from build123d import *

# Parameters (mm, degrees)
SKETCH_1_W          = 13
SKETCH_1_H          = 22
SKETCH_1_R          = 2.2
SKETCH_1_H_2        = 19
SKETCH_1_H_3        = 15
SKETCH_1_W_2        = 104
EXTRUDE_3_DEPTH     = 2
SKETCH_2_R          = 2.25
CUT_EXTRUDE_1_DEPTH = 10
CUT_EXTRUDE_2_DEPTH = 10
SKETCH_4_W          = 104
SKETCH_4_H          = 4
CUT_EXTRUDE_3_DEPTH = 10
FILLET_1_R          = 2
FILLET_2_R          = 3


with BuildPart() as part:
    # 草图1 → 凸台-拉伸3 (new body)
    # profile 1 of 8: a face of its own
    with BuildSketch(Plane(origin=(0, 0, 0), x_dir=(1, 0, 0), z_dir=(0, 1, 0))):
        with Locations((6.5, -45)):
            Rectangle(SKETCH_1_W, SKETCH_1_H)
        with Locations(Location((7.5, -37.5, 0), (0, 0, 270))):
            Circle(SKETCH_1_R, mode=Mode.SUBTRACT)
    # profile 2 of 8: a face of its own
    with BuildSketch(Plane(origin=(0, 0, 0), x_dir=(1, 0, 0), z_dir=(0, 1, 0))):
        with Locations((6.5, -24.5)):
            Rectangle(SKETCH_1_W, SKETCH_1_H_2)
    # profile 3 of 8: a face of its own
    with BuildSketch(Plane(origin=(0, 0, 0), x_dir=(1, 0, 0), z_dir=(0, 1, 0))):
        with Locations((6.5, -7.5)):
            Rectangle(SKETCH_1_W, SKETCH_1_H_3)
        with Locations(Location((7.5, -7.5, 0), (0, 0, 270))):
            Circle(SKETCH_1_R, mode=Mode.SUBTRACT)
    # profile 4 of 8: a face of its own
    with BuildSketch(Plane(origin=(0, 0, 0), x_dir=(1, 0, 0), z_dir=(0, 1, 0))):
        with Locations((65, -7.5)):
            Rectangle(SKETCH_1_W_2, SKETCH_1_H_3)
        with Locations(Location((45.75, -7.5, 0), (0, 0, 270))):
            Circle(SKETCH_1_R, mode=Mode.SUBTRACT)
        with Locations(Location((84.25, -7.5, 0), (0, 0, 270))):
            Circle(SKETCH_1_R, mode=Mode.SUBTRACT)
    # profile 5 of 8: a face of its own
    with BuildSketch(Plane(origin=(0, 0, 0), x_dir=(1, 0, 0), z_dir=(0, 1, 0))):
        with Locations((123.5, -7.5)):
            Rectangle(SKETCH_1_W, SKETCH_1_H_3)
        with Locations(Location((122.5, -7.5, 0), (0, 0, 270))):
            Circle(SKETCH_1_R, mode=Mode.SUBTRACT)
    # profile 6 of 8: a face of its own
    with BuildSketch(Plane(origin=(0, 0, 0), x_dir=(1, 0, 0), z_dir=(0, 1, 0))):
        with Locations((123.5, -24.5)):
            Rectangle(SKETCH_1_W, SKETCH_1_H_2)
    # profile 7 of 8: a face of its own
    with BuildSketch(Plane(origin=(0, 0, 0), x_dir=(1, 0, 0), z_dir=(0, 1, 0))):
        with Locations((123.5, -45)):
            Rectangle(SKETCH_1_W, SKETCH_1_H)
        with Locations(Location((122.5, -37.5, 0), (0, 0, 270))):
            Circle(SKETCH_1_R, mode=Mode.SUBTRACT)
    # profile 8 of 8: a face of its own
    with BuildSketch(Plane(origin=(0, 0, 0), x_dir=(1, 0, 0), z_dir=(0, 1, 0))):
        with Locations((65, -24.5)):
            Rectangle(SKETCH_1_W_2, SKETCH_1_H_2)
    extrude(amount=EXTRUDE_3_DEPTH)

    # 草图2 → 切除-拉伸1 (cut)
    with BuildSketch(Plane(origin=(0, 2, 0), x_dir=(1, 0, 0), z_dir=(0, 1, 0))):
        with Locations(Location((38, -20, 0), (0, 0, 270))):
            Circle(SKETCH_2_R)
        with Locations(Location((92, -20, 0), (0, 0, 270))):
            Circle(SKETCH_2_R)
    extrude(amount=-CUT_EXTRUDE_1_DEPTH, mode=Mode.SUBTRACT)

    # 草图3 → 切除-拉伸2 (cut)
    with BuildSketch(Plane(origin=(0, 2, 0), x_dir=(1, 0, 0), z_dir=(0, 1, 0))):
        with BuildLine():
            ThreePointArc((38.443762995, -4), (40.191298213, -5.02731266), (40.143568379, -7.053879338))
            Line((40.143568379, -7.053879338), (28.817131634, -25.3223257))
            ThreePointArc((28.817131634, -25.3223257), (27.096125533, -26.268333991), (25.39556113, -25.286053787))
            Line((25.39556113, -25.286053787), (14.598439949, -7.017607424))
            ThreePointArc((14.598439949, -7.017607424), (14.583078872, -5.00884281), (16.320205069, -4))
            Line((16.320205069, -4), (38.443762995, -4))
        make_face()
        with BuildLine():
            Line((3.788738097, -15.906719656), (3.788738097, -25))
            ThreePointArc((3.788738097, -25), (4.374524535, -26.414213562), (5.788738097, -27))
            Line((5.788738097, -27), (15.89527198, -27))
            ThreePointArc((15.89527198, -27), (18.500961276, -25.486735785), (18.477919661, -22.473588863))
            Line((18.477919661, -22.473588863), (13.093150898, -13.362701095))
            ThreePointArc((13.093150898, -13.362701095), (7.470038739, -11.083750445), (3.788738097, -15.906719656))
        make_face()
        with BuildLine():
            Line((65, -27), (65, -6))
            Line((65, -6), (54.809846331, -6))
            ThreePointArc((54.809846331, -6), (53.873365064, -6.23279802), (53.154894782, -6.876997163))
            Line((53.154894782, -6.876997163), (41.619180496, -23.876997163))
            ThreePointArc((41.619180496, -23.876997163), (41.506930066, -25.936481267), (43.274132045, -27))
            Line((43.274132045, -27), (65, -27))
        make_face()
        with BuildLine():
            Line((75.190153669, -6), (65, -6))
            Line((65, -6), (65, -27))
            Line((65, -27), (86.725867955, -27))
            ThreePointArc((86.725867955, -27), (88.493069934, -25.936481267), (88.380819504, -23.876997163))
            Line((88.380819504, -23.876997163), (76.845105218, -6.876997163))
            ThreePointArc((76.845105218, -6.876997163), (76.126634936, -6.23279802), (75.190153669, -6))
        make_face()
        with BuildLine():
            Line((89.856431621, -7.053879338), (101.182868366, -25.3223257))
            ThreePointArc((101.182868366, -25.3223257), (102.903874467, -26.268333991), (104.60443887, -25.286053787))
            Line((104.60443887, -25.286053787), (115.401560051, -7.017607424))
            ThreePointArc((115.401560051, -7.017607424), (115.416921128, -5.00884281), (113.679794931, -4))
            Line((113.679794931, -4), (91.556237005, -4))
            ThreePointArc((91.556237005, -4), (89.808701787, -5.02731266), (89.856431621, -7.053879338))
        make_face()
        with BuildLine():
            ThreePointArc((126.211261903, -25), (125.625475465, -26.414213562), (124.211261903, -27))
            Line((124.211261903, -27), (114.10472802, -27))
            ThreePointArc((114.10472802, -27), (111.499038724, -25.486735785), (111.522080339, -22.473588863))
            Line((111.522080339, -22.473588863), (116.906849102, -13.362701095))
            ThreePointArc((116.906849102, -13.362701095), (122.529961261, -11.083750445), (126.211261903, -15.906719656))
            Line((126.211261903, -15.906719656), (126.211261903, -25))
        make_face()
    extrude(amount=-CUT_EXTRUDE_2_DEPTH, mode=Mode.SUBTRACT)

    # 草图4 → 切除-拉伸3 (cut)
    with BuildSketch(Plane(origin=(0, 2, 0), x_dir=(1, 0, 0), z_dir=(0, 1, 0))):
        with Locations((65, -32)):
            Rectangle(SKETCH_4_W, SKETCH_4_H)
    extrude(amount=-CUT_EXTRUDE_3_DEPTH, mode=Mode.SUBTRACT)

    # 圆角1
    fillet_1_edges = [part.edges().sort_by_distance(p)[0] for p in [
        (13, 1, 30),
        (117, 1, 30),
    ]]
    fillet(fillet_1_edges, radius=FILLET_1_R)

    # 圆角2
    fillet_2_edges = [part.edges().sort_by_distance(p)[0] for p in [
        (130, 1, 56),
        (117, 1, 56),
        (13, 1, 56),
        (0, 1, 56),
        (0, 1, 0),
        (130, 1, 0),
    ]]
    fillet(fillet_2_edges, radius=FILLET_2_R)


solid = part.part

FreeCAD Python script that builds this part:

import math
import FreeCAD as App
import Part
import Sketcher

V = App.Vector
Q = App.Units.Quantity


def edges_at(feature, points):
    """Names of the edges that pass closest to the given points."""
    edges = feature.Shape.Edges
    near = lambda p: min(range(len(edges)), key=lambda i: edges[i].distToShape(Part.Vertex(*p))[0])
    return sorted({f"Edge{near(p) + 1}" for p in points})

doc = App.newDocument("Part")
params = doc.addObject("Spreadsheet::Sheet", "Params")
for row, (alias, value) in enumerate([
    ("sketch1_diameter", "4.4 mm"),
    ("sketch1_width", "13 mm"),
    ("sketch1_width2", "104 mm"),
    ("sketch1_height", "22 mm"),
    ("sketch1_height2", "56 mm"),
    ("pad1_length", "2 mm"),
    ("sketch2_diameter", "4.5 mm"),
    ("pocket1_length", "10 mm"),
    ("sketch3_radius", "2 mm"),
    ("sketch3_radius2", "3 mm"),
    ("sketch3_radius3", "5 mm"),
    ("pocket2_length", "10 mm"),
    ("sketch4_width", "104 mm"),
    ("sketch4_height", "4 mm"),
    ("pocket3_length", "10 mm"),
    ("fillet_radius", "2 mm"),
    ("fillet2_radius", "3 mm"),
], start=1):
    params.set(f"A{row}", alias)
    params.set(f"B{row}", "=" + value)
    params.setAlias(f"B{row}", alias)

body = doc.addObject("PartDesign::Body", "Body")

# Sketch on XZ plane
sketch1 = doc.addObject("Sketcher::SketchObject", "Sketch")
body.addObject(sketch1)
sketch1.AttachmentSupport = (doc.XZ_Plane, [""])
sketch1.MapMode = "FlatFace"
sketch1.addGeometry([
    Part.LineSegment(V(0, 56, 0), V(13, 56, 0)),  # 0
    Part.LineSegment(V(13, 56, 0), V(13, 34, 0)),  # 1
    Part.LineSegment(V(13, 34, 0), V(117, 34, 0)),  # 2
    Part.LineSegment(V(117, 34, 0), V(117, 56, 0)),  # 3
    Part.LineSegment(V(117, 56, 0), V(130, 56, 0)),  # 4
    Part.LineSegment(V(130, 56, 0), V(130, 0, 0)),  # 5
    Part.LineSegment(V(130, 0, 0), V(0, 0, 0)),  # 6
    Part.LineSegment(V(0, 0, 0), V(0, 56, 0)),  # 7
    Part.Circle(V(7.5, 37.5, 0), V(0, 0, 1), 2.2),  # 8
    Part.Circle(V(7.5, 7.5, 0), V(0, 0, 1), 2.2),  # 9
    Part.Circle(V(84.25, 7.5, 0), V(0, 0, 1), 2.2),  # 10
    Part.Circle(V(45.75, 7.5, 0), V(0, 0, 1), 2.2),  # 11
    Part.Circle(V(122.5, 7.5, 0), V(0, 0, 1), 2.2),  # 12
    Part.Circle(V(122.5, 37.5, 0), V(0, 0, 1), 2.2),  # 13
], False)
sketch1.addConstraint([
    Sketcher.Constraint("Coincident", 0, 2, 1, 1),
    Sketcher.Constraint("Coincident", 1, 2, 2, 1),
    Sketcher.Constraint("Coincident", 2, 2, 3, 1),
    Sketcher.Constraint("Coincident", 3, 2, 4, 1),
    Sketcher.Constraint("Coincident", 4, 2, 5, 1),
    Sketcher.Constraint("Coincident", 5, 2, 6, 1),
    Sketcher.Constraint("Coincident", 6, 2, 7, 1),
    Sketcher.Constraint("Coincident", 7, 2, 0, 1),
    Sketcher.Constraint("Horizontal", 0),
    Sketcher.Constraint("Vertical", 1),
    Sketcher.Constraint("Horizontal", 2),
    Sketcher.Constraint("Vertical", 3),
    Sketcher.Constraint("Horizontal", 4),
    Sketcher.Constraint("Vertical", 5),
    Sketcher.Constraint("Horizontal", 6),
    Sketcher.Constraint("Vertical", 7),
    Sketcher.Constraint("Coincident", 6, 2, -1, 1),
    Sketcher.Constraint("Equal", 8, 9),
    Sketcher.Constraint("Equal", 9, 10),
    Sketcher.Constraint("Equal", 10, 11),
    Sketcher.Constraint("Equal", 11, 12),
    Sketcher.Constraint("Equal", 12, 13),
    Sketcher.Constraint("Horizontal", 9, 3, 10, 3),
    Sketcher.Constraint("Horizontal", 10, 3, 11, 3),
    Sketcher.Constraint("Horizontal", 11, 3, 12, 3),
    Sketcher.Constraint("Horizontal", 8, 3, 13, 3),
    Sketcher.Constraint("Horizontal", 0, 2, 3, 2),
    Sketcher.Constraint("Vertical", 8, 3, 9, 3),
    Sketcher.Constraint("Vertical", 12, 3, 13, 3),
    Sketcher.Constraint("Equal", 0, 4),
    Sketcher.Constraint("Diameter", 8, Q("4.4 mm")),
    Sketcher.Constraint("DistanceX", 0, 1, 0, 2, Q("13 mm")),
    Sketcher.Constraint("DistanceX", 2, 1, 2, 2, Q("104 mm")),
    Sketcher.Constraint("DistanceY", 1, 2, 1, 1, Q("22 mm")),
    Sketcher.Constraint("DistanceY", 5, 2, 5, 1, Q("56 mm")),
    Sketcher.Constraint("DistanceY", 9, 3, 8, 3, Q("30 mm")),
    Sketcher.Constraint("DistanceX", 9, 3, 12, 3, Q("115 mm")),
    Sketcher.Constraint("DistanceX", -1, 1, 8, 3, Q("7.5 mm")),
    Sketcher.Constraint("DistanceY", -1, 1, 8, 3, Q("37.5 mm")),
    Sketcher.Constraint("DistanceX", 11, 3, 10, 3, Q("38.5 mm")),
    Sketcher.Constraint("DistanceX", -1, 1, 10, 3, Q("84.25 mm")),
])
sketch1.setExpression("Constraints[30]", "Params.sketch1_diameter")
sketch1.setExpression("Constraints[31]", "Params.sketch1_width")
sketch1.setExpression("Constraints[32]", "Params.sketch1_width2")
sketch1.setExpression("Constraints[33]", "Params.sketch1_height")
sketch1.setExpression("Constraints[34]", "Params.sketch1_height2")
pad1 = doc.addObject("PartDesign::Pad", "Pad")
body.addObject(pad1)
pad1.Profile = sketch1
pad1.setExpression("Length", "Params.pad1_length")
pad1.Reversed = True

# Sketch on XZ plane
sketch2 = doc.addObject("Sketcher::SketchObject", "Sketch001")
body.addObject(sketch2)
sketch2.AttachmentSupport = (doc.XZ_Plane, [""])
sketch2.MapMode = "FlatFace"
sketch2.AttachmentOffset = App.Placement(V(0, 0, -2), App.Rotation())
sketch2.addGeometry([
    Part.Circle(V(38, 20, 0), V(0, 0, 1), 2.25),
    Part.Circle(V(92, 20, 0), V(0, 0, 1), 2.25),
], False)
sketch2.addConstraint([
    Sketcher.Constraint("Equal", 0, 1),
    Sketcher.Constraint("Horizontal", 0, 3, 1, 3),
    Sketcher.Constraint("Diameter", 0, Q("4.5 mm")),
    Sketcher.Constraint("DistanceX", -1, 1, 0, 3, Q("38 mm")),
    Sketcher.Constraint("DistanceY", -1, 1, 0, 3, Q("20 mm")),
    Sketcher.Constraint("DistanceX", -1, 1, 1, 3, Q("92 mm")),
])
sketch2.setExpression("Constraints[2]", "Params.sketch2_diameter")
pocket1 = doc.addObject("PartDesign::Pocket", "Pocket")
body.addObject(pocket1)
pocket1.Profile = sketch2
pocket1.setExpression("Length", "Params.pocket1_length")
pocket1.Reversed = True

# Sketch on XZ plane
sketch3 = doc.addObject("Sketcher::SketchObject", "Sketch002")
body.addObject(sketch3)
sketch3.AttachmentSupport = (doc.XZ_Plane, [""])
sketch3.MapMode = "FlatFace"
sketch3.AttachmentOffset = App.Placement(V(0, 0, -2), App.Rotation())
sketch3.addGeometry([
    Part.ArcOfCircle(Part.Circle(V(38.443763, 6, 0), V(0, 0, 1), 2), math.radians(-90), math.radians(31.798913)),  # 0
    Part.LineSegment(V(38.443763, 4, 0), V(16.320205, 4, 0)),  # 1
    Part.ArcOfCircle(Part.Circle(V(16.320205, 6, 0), V(0, 0, 1), 2), math.radians(149.415822), math.radians(270)),  # 2
    Part.LineSegment(V(14.59844, 7.017607, 0), V(25.395561, 25.286054, 0)),  # 3
    Part.ArcOfCircle(Part.Circle(V(27.117326, 24.268446, 0), V(0, 0, 1), 2), math.radians(31.798913), math.radians(149.415822)),  # 4
    Part.LineSegment(V(28.817132, 25.322326, 0), V(40.143568, 7.053879, 0)),  # 5
    Part.LineSegment(V(3.788738, 15.90672, 0), V(3.788738, 25, 0)),  # 6
    Part.ArcOfCircle(Part.Circle(V(5.788738, 25, 0), V(0, 0, 1), 2), math.radians(90), math.radians(180)),  # 7
    Part.LineSegment(V(5.788738, 27, 0), V(15.895272, 27, 0)),  # 8
    Part.ArcOfCircle(Part.Circle(V(15.895272, 24, 0), V(0, 0, 1), 3), math.radians(-30.584178), math.radians(90)),  # 9
    Part.LineSegment(V(18.47792, 22.473589, 0), V(13.093151, 13.362701, 0)),  # 10
    Part.ArcOfCircle(Part.Circle(V(8.788738, 15.90672, 0), V(0, 0, 1), 5), math.radians(180), math.radians(329.415822)),  # 11
    Part.ArcOfCircle(Part.Circle(V(54.809846, 8, 0), V(0, 0, 1), 2), math.radians(-145.840305), math.radians(-90)),  # 12
    Part.LineSegment(V(53.154895, 6.876997, 0), V(41.61918, 23.876997, 0)),  # 13
    Part.ArcOfCircle(Part.Circle(V(43.274132, 25, 0), V(0, 0, 1), 2), math.radians(90), math.radians(214.159695)),  # 14
    Part.LineSegment(V(43.274132, 27, 0), V(86.725868, 27, 0)),  # 15
    Part.ArcOfCircle(Part.Circle(V(86.725868, 25, 0), V(0, 0, 1), 2), math.radians(-34.159695), math.radians(90)),  # 16
    Part.LineSegment(V(88.38082, 23.876997, 0), V(76.845105, 6.876997, 0)),  # 17
    Part.ArcOfCircle(Part.Circle(V(75.190154, 8, 0), V(0, 0, 1), 2), math.radians(-90), math.radians(-34.159695)),  # 18
    Part.LineSegment(V(75.190154, 6, 0), V(54.809846, 6, 0)),  # 19
    Part.LineSegment(V(89.856432, 7.053879, 0), V(101.182868, 25.322326, 0)),  # 20
    Part.ArcOfCircle(Part.Circle(V(102.882674, 24.268446, 0), V(0, 0, 1), 2), math.radians(30.584178), math.radians(148.201087)),  # 21
    Part.LineSegment(V(104.604439, 25.286054, 0), V(115.40156, 7.017607, 0)),  # 22
    Part.ArcOfCircle(Part.Circle(V(113.679795, 6, 0), V(0, 0, 1), 2), math.radians(-90), math.radians(30.584178)),  # 23
    Part.LineSegment(V(113.679795, 4, 0), V(91.556237, 4, 0)),  # 24
    Part.ArcOfCircle(Part.Circle(V(91.556237, 6, 0), V(0, 0, 1), 2), math.radians(148.201087), math.radians(270)),  # 25
    Part.ArcOfCircle(Part.Circle(V(124.211262, 25, 0), V(0, 0, 1), 2), math.radians(0), math.radians(90)),  # 26
    Part.LineSegment(V(126.211262, 25, 0), V(126.211262, 15.90672, 0)),  # 27
    Part.ArcOfCircle(Part.Circle(V(121.211262, 15.90672, 0), V(0, 0, 1), 5), math.radians(-149.415822), math.radians(0)),  # 28
    Part.LineSegment(V(116.906849, 13.362701, 0), V(111.52208, 22.473589, 0)),  # 29
    Part.ArcOfCircle(Part.Circle(V(114.104728, 24, 0), V(0, 0, 1), 3), math.radians(90), math.radians(210.584178)),  # 30
    Part.LineSegment(V(114.104728, 27, 0), V(124.211262, 27, 0)),  # 31
], False)
sketch3.addConstraint([
    Sketcher.Constraint("Tangent", 0, 1, 1, 1),
    Sketcher.Constraint("Tangent", 1, 2, 2, 2),
    Sketcher.Constraint("Tangent", 2, 1, 3, 1),
    Sketcher.Constraint("Tangent", 3, 2, 4, 2),
    Sketcher.Constraint("Tangent", 4, 1, 5, 1),
    Sketcher.Constraint("Tangent", 5, 2, 0, 2),
    Sketcher.Constraint("Tangent", 6, 2, 7, 2),
    Sketcher.Constraint("Tangent", 7, 1, 8, 1),
    Sketcher.Constraint("Tangent", 8, 2, 9, 2),
    Sketcher.Constraint("Tangent", 9, 1, 10, 1),
    Sketcher.Constraint("Tangent", 10, 2, 11, 2),
    Sketcher.Constraint("Tangent", 11, 1, 6, 1),
    Sketcher.Constraint("Tangent", 12, 1, 13, 1),
    Sketcher.Constraint("Tangent", 13, 2, 14, 2),
    Sketcher.Constraint("Tangent", 14, 1, 15, 1),
    Sketcher.Constraint("Tangent", 15, 2, 16, 2),
    Sketcher.Constraint("Tangent", 16, 1, 17, 1),
    Sketcher.Constraint("Tangent", 17, 2, 18, 2),
    Sketcher.Constraint("Tangent", 18, 1, 19, 1),
    Sketcher.Constraint("Tangent", 19, 2, 12, 2),
    Sketcher.Constraint("Tangent", 20, 2, 21, 2),
    Sketcher.Constraint("Tangent", 21, 1, 22, 1),
    Sketcher.Constraint("Tangent", 22, 2, 23, 2),
    Sketcher.Constraint("Tangent", 23, 1, 24, 1),
    Sketcher.Constraint("Tangent", 24, 2, 25, 2),
    Sketcher.Constraint("Tangent", 25, 1, 20, 1),
    Sketcher.Constraint("Tangent", 26, 1, 27, 1),
    Sketcher.Constraint("Tangent", 27, 2, 28, 2),
    Sketcher.Constraint("Tangent", 28, 1, 29, 1),
    Sketcher.Constraint("Tangent", 29, 2, 30, 2),
    Sketcher.Constraint("Tangent", 30, 1, 31, 1),
    Sketcher.Constraint("Tangent", 31, 2, 26, 2),
    Sketcher.Constraint("Horizontal", 1),
    Sketcher.Constraint("Vertical", 6),
    Sketcher.Constraint("Horizontal", 8),
    Sketcher.Constraint("Horizontal", 15),
    Sketcher.Constraint("Horizontal", 19),
    Sketcher.Constraint("Horizontal", 24),
    Sketcher.Constraint("Vertical", 27),
    Sketcher.Constraint("Horizontal", 31),
    Sketcher.Constraint("Equal", 0, 2),
    Sketcher.Constraint("Equal", 2, 4),
    Sketcher.Constraint("Equal", 4, 7),
    Sketcher.Constraint("Equal", 7, 12),
    Sketcher.Constraint("Equal", 12, 14),
    Sketcher.Constraint("Equal", 14, 16),
    Sketcher.Constraint("Equal", 16, 18),
    Sketcher.Constraint("Equal", 18, 21),
    Sketcher.Constraint("Equal", 21, 23),
    Sketcher.Constraint("Equal", 23, 25),
    Sketcher.Constraint("Equal", 25, 26),
    Sketcher.Constraint("Equal", 11, 28),
    Sketcher.Constraint("Equal", 9, 30),
    Sketcher.Constraint("Parallel", 3, 10),
    Sketcher.Constraint("Parallel", 22, 29),
    Sketcher.Constraint("Horizontal", 7, 3, 14, 3),
    Sketcher.Constraint("Horizontal", 4, 3, 21, 3),
    Sketcher.Constraint("Horizontal", 2, 3, 23, 3),
    Sketcher.Constraint("Horizontal", 16, 3, 26, 3),
    Sketcher.Constraint("Horizontal", 11, 3, 28, 3),
    Sketcher.Constraint("Horizontal", 13, 2, 16, 1),
    Sketcher.Constraint("Horizontal", 25, 3, 18, 1),
    Sketcher.Constraint("Horizontal", 4, 1, 20, 2),
    Sketcher.Constraint("Horizontal", 3, 2, 21, 1),
    Sketcher.Constraint("Radius", 0, Q("2 mm")),
    Sketcher.Constraint("Radius", 9, Q("3 mm")),
    Sketcher.Constraint("Radius", 11, Q("5 mm")),
    Sketcher.Constraint("DistanceY", -1, 1, 0, 3, Q("6 mm")),
    Sketcher.Constraint("DistanceY", -1, 1, 7, 3, Q("25 mm")),
    Sketcher.Constraint("DistanceX", 4, 1, 14, 3, Q("14.457 mm")),
    Sketcher.Constraint("DistanceX", 16, 3, 20, 2, Q("14.457 mm")),
    Sketcher.Constraint("DistanceY", 6, 1, 6, 2, Q("9.09328 mm")),
    Sketcher.Constraint("DistanceY", -1, 1, 10, 2, Q("13.362701 mm")),
    Sketcher.Constraint("DistanceX", 11, 3, 2, 1, Q("5.809702 mm")),
    Sketcher.Constraint("DistanceX", 22, 2, 28, 3, Q("5.809702 mm")),
    Sketcher.Constraint("Distance", 5, Q("21.494751 mm")),
    Sketcher.Constraint("Distance", 13, Q("20.544408 mm")),
    Sketcher.Constraint("DistanceX", 1, 2, 1, 1, Q("22.123558 mm")),
    Sketcher.Constraint("DistanceX", 15, 1, 15, 2, Q("43.451736 mm")),
    Sketcher.Constraint("DistanceX", -1, 1, 7, 3, Q("5.788738 mm")),
])
sketch3.setExpression("Constraints[64]", "Params.sketch3_radius")
sketch3.setExpression("Constraints[65]", "Params.sketch3_radius2")
sketch3.setExpression("Constraints[66]", "Params.sketch3_radius3")
pocket2 = doc.addObject("PartDesign::Pocket", "Pocket001")
body.addObject(pocket2)
pocket2.Profile = sketch3
pocket2.setExpression("Length", "Params.pocket2_length")
pocket2.Reversed = True

# Sketch on XZ plane
sketch4 = doc.addObject("Sketcher::SketchObject", "Sketch003")
body.addObject(sketch4)
sketch4.AttachmentSupport = (doc.XZ_Plane, [""])
sketch4.MapMode = "FlatFace"
sketch4.AttachmentOffset = App.Placement(V(0, 0, -2), App.Rotation())
sketch4.addGeometry([
    Part.LineSegment(V(13, 30, 0), V(13, 34, 0)),
    Part.LineSegment(V(13, 34, 0), V(117, 34, 0)),
    Part.LineSegment(V(117, 34, 0), V(117, 30, 0)),
    Part.LineSegment(V(117, 30, 0), V(13, 30, 0)),
], False)
sketch4.addConstraint([
    Sketcher.Constraint("Coincident", 0, 2, 1, 1),
    Sketcher.Constraint("Coincident", 1, 2, 2, 1),
    Sketcher.Constraint("Coincident", 2, 2, 3, 1),
    Sketcher.Constraint("Coincident", 3, 2, 0, 1),
    Sketcher.Constraint("Vertical", 0),
    Sketcher.Constraint("Horizontal", 1),
    Sketcher.Constraint("Vertical", 2),
    Sketcher.Constraint("Horizontal", 3),
    Sketcher.Constraint("DistanceX", 1, 1, 1, 2, Q("104 mm")),
    Sketcher.Constraint("DistanceY", 0, 1, 0, 2, Q("4 mm")),
    Sketcher.Constraint("DistanceX", -1, 1, 0, 2, Q("13 mm")),
    Sketcher.Constraint("DistanceY", -1, 1, 0, 2, Q("34 mm")),
])
sketch4.setExpression("Constraints[8]", "Params.sketch4_width")
sketch4.setExpression("Constraints[9]", "Params.sketch4_height")
pocket3 = doc.addObject("PartDesign::Pocket", "Pocket002")
body.addObject(pocket3)
pocket3.Profile = sketch4
pocket3.setExpression("Length", "Params.pocket3_length")
pocket3.Reversed = True
doc.recompute()

fillet = doc.addObject("PartDesign::Fillet", "Fillet")
body.addObject(fillet)
fillet.Base = (pocket3, edges_at(pocket3, [(13, 1, 30), (117, 1, 30)]))
fillet.setExpression("Radius", "Params.fillet_radius")
doc.recompute()

fillet2 = doc.addObject("PartDesign::Fillet", "Fillet001")
body.addObject(fillet2)
fillet2.Base = (fillet, edges_at(fillet, [
    (130, 1, 56),
    (117, 1, 56),
    (13, 1, 56),
    (0, 1, 56),
    (0, 1, 0),
    (130, 1, 0),
]))
fillet2.setExpression("Radius", "Params.fillet2_radius")

doc.recompute()
